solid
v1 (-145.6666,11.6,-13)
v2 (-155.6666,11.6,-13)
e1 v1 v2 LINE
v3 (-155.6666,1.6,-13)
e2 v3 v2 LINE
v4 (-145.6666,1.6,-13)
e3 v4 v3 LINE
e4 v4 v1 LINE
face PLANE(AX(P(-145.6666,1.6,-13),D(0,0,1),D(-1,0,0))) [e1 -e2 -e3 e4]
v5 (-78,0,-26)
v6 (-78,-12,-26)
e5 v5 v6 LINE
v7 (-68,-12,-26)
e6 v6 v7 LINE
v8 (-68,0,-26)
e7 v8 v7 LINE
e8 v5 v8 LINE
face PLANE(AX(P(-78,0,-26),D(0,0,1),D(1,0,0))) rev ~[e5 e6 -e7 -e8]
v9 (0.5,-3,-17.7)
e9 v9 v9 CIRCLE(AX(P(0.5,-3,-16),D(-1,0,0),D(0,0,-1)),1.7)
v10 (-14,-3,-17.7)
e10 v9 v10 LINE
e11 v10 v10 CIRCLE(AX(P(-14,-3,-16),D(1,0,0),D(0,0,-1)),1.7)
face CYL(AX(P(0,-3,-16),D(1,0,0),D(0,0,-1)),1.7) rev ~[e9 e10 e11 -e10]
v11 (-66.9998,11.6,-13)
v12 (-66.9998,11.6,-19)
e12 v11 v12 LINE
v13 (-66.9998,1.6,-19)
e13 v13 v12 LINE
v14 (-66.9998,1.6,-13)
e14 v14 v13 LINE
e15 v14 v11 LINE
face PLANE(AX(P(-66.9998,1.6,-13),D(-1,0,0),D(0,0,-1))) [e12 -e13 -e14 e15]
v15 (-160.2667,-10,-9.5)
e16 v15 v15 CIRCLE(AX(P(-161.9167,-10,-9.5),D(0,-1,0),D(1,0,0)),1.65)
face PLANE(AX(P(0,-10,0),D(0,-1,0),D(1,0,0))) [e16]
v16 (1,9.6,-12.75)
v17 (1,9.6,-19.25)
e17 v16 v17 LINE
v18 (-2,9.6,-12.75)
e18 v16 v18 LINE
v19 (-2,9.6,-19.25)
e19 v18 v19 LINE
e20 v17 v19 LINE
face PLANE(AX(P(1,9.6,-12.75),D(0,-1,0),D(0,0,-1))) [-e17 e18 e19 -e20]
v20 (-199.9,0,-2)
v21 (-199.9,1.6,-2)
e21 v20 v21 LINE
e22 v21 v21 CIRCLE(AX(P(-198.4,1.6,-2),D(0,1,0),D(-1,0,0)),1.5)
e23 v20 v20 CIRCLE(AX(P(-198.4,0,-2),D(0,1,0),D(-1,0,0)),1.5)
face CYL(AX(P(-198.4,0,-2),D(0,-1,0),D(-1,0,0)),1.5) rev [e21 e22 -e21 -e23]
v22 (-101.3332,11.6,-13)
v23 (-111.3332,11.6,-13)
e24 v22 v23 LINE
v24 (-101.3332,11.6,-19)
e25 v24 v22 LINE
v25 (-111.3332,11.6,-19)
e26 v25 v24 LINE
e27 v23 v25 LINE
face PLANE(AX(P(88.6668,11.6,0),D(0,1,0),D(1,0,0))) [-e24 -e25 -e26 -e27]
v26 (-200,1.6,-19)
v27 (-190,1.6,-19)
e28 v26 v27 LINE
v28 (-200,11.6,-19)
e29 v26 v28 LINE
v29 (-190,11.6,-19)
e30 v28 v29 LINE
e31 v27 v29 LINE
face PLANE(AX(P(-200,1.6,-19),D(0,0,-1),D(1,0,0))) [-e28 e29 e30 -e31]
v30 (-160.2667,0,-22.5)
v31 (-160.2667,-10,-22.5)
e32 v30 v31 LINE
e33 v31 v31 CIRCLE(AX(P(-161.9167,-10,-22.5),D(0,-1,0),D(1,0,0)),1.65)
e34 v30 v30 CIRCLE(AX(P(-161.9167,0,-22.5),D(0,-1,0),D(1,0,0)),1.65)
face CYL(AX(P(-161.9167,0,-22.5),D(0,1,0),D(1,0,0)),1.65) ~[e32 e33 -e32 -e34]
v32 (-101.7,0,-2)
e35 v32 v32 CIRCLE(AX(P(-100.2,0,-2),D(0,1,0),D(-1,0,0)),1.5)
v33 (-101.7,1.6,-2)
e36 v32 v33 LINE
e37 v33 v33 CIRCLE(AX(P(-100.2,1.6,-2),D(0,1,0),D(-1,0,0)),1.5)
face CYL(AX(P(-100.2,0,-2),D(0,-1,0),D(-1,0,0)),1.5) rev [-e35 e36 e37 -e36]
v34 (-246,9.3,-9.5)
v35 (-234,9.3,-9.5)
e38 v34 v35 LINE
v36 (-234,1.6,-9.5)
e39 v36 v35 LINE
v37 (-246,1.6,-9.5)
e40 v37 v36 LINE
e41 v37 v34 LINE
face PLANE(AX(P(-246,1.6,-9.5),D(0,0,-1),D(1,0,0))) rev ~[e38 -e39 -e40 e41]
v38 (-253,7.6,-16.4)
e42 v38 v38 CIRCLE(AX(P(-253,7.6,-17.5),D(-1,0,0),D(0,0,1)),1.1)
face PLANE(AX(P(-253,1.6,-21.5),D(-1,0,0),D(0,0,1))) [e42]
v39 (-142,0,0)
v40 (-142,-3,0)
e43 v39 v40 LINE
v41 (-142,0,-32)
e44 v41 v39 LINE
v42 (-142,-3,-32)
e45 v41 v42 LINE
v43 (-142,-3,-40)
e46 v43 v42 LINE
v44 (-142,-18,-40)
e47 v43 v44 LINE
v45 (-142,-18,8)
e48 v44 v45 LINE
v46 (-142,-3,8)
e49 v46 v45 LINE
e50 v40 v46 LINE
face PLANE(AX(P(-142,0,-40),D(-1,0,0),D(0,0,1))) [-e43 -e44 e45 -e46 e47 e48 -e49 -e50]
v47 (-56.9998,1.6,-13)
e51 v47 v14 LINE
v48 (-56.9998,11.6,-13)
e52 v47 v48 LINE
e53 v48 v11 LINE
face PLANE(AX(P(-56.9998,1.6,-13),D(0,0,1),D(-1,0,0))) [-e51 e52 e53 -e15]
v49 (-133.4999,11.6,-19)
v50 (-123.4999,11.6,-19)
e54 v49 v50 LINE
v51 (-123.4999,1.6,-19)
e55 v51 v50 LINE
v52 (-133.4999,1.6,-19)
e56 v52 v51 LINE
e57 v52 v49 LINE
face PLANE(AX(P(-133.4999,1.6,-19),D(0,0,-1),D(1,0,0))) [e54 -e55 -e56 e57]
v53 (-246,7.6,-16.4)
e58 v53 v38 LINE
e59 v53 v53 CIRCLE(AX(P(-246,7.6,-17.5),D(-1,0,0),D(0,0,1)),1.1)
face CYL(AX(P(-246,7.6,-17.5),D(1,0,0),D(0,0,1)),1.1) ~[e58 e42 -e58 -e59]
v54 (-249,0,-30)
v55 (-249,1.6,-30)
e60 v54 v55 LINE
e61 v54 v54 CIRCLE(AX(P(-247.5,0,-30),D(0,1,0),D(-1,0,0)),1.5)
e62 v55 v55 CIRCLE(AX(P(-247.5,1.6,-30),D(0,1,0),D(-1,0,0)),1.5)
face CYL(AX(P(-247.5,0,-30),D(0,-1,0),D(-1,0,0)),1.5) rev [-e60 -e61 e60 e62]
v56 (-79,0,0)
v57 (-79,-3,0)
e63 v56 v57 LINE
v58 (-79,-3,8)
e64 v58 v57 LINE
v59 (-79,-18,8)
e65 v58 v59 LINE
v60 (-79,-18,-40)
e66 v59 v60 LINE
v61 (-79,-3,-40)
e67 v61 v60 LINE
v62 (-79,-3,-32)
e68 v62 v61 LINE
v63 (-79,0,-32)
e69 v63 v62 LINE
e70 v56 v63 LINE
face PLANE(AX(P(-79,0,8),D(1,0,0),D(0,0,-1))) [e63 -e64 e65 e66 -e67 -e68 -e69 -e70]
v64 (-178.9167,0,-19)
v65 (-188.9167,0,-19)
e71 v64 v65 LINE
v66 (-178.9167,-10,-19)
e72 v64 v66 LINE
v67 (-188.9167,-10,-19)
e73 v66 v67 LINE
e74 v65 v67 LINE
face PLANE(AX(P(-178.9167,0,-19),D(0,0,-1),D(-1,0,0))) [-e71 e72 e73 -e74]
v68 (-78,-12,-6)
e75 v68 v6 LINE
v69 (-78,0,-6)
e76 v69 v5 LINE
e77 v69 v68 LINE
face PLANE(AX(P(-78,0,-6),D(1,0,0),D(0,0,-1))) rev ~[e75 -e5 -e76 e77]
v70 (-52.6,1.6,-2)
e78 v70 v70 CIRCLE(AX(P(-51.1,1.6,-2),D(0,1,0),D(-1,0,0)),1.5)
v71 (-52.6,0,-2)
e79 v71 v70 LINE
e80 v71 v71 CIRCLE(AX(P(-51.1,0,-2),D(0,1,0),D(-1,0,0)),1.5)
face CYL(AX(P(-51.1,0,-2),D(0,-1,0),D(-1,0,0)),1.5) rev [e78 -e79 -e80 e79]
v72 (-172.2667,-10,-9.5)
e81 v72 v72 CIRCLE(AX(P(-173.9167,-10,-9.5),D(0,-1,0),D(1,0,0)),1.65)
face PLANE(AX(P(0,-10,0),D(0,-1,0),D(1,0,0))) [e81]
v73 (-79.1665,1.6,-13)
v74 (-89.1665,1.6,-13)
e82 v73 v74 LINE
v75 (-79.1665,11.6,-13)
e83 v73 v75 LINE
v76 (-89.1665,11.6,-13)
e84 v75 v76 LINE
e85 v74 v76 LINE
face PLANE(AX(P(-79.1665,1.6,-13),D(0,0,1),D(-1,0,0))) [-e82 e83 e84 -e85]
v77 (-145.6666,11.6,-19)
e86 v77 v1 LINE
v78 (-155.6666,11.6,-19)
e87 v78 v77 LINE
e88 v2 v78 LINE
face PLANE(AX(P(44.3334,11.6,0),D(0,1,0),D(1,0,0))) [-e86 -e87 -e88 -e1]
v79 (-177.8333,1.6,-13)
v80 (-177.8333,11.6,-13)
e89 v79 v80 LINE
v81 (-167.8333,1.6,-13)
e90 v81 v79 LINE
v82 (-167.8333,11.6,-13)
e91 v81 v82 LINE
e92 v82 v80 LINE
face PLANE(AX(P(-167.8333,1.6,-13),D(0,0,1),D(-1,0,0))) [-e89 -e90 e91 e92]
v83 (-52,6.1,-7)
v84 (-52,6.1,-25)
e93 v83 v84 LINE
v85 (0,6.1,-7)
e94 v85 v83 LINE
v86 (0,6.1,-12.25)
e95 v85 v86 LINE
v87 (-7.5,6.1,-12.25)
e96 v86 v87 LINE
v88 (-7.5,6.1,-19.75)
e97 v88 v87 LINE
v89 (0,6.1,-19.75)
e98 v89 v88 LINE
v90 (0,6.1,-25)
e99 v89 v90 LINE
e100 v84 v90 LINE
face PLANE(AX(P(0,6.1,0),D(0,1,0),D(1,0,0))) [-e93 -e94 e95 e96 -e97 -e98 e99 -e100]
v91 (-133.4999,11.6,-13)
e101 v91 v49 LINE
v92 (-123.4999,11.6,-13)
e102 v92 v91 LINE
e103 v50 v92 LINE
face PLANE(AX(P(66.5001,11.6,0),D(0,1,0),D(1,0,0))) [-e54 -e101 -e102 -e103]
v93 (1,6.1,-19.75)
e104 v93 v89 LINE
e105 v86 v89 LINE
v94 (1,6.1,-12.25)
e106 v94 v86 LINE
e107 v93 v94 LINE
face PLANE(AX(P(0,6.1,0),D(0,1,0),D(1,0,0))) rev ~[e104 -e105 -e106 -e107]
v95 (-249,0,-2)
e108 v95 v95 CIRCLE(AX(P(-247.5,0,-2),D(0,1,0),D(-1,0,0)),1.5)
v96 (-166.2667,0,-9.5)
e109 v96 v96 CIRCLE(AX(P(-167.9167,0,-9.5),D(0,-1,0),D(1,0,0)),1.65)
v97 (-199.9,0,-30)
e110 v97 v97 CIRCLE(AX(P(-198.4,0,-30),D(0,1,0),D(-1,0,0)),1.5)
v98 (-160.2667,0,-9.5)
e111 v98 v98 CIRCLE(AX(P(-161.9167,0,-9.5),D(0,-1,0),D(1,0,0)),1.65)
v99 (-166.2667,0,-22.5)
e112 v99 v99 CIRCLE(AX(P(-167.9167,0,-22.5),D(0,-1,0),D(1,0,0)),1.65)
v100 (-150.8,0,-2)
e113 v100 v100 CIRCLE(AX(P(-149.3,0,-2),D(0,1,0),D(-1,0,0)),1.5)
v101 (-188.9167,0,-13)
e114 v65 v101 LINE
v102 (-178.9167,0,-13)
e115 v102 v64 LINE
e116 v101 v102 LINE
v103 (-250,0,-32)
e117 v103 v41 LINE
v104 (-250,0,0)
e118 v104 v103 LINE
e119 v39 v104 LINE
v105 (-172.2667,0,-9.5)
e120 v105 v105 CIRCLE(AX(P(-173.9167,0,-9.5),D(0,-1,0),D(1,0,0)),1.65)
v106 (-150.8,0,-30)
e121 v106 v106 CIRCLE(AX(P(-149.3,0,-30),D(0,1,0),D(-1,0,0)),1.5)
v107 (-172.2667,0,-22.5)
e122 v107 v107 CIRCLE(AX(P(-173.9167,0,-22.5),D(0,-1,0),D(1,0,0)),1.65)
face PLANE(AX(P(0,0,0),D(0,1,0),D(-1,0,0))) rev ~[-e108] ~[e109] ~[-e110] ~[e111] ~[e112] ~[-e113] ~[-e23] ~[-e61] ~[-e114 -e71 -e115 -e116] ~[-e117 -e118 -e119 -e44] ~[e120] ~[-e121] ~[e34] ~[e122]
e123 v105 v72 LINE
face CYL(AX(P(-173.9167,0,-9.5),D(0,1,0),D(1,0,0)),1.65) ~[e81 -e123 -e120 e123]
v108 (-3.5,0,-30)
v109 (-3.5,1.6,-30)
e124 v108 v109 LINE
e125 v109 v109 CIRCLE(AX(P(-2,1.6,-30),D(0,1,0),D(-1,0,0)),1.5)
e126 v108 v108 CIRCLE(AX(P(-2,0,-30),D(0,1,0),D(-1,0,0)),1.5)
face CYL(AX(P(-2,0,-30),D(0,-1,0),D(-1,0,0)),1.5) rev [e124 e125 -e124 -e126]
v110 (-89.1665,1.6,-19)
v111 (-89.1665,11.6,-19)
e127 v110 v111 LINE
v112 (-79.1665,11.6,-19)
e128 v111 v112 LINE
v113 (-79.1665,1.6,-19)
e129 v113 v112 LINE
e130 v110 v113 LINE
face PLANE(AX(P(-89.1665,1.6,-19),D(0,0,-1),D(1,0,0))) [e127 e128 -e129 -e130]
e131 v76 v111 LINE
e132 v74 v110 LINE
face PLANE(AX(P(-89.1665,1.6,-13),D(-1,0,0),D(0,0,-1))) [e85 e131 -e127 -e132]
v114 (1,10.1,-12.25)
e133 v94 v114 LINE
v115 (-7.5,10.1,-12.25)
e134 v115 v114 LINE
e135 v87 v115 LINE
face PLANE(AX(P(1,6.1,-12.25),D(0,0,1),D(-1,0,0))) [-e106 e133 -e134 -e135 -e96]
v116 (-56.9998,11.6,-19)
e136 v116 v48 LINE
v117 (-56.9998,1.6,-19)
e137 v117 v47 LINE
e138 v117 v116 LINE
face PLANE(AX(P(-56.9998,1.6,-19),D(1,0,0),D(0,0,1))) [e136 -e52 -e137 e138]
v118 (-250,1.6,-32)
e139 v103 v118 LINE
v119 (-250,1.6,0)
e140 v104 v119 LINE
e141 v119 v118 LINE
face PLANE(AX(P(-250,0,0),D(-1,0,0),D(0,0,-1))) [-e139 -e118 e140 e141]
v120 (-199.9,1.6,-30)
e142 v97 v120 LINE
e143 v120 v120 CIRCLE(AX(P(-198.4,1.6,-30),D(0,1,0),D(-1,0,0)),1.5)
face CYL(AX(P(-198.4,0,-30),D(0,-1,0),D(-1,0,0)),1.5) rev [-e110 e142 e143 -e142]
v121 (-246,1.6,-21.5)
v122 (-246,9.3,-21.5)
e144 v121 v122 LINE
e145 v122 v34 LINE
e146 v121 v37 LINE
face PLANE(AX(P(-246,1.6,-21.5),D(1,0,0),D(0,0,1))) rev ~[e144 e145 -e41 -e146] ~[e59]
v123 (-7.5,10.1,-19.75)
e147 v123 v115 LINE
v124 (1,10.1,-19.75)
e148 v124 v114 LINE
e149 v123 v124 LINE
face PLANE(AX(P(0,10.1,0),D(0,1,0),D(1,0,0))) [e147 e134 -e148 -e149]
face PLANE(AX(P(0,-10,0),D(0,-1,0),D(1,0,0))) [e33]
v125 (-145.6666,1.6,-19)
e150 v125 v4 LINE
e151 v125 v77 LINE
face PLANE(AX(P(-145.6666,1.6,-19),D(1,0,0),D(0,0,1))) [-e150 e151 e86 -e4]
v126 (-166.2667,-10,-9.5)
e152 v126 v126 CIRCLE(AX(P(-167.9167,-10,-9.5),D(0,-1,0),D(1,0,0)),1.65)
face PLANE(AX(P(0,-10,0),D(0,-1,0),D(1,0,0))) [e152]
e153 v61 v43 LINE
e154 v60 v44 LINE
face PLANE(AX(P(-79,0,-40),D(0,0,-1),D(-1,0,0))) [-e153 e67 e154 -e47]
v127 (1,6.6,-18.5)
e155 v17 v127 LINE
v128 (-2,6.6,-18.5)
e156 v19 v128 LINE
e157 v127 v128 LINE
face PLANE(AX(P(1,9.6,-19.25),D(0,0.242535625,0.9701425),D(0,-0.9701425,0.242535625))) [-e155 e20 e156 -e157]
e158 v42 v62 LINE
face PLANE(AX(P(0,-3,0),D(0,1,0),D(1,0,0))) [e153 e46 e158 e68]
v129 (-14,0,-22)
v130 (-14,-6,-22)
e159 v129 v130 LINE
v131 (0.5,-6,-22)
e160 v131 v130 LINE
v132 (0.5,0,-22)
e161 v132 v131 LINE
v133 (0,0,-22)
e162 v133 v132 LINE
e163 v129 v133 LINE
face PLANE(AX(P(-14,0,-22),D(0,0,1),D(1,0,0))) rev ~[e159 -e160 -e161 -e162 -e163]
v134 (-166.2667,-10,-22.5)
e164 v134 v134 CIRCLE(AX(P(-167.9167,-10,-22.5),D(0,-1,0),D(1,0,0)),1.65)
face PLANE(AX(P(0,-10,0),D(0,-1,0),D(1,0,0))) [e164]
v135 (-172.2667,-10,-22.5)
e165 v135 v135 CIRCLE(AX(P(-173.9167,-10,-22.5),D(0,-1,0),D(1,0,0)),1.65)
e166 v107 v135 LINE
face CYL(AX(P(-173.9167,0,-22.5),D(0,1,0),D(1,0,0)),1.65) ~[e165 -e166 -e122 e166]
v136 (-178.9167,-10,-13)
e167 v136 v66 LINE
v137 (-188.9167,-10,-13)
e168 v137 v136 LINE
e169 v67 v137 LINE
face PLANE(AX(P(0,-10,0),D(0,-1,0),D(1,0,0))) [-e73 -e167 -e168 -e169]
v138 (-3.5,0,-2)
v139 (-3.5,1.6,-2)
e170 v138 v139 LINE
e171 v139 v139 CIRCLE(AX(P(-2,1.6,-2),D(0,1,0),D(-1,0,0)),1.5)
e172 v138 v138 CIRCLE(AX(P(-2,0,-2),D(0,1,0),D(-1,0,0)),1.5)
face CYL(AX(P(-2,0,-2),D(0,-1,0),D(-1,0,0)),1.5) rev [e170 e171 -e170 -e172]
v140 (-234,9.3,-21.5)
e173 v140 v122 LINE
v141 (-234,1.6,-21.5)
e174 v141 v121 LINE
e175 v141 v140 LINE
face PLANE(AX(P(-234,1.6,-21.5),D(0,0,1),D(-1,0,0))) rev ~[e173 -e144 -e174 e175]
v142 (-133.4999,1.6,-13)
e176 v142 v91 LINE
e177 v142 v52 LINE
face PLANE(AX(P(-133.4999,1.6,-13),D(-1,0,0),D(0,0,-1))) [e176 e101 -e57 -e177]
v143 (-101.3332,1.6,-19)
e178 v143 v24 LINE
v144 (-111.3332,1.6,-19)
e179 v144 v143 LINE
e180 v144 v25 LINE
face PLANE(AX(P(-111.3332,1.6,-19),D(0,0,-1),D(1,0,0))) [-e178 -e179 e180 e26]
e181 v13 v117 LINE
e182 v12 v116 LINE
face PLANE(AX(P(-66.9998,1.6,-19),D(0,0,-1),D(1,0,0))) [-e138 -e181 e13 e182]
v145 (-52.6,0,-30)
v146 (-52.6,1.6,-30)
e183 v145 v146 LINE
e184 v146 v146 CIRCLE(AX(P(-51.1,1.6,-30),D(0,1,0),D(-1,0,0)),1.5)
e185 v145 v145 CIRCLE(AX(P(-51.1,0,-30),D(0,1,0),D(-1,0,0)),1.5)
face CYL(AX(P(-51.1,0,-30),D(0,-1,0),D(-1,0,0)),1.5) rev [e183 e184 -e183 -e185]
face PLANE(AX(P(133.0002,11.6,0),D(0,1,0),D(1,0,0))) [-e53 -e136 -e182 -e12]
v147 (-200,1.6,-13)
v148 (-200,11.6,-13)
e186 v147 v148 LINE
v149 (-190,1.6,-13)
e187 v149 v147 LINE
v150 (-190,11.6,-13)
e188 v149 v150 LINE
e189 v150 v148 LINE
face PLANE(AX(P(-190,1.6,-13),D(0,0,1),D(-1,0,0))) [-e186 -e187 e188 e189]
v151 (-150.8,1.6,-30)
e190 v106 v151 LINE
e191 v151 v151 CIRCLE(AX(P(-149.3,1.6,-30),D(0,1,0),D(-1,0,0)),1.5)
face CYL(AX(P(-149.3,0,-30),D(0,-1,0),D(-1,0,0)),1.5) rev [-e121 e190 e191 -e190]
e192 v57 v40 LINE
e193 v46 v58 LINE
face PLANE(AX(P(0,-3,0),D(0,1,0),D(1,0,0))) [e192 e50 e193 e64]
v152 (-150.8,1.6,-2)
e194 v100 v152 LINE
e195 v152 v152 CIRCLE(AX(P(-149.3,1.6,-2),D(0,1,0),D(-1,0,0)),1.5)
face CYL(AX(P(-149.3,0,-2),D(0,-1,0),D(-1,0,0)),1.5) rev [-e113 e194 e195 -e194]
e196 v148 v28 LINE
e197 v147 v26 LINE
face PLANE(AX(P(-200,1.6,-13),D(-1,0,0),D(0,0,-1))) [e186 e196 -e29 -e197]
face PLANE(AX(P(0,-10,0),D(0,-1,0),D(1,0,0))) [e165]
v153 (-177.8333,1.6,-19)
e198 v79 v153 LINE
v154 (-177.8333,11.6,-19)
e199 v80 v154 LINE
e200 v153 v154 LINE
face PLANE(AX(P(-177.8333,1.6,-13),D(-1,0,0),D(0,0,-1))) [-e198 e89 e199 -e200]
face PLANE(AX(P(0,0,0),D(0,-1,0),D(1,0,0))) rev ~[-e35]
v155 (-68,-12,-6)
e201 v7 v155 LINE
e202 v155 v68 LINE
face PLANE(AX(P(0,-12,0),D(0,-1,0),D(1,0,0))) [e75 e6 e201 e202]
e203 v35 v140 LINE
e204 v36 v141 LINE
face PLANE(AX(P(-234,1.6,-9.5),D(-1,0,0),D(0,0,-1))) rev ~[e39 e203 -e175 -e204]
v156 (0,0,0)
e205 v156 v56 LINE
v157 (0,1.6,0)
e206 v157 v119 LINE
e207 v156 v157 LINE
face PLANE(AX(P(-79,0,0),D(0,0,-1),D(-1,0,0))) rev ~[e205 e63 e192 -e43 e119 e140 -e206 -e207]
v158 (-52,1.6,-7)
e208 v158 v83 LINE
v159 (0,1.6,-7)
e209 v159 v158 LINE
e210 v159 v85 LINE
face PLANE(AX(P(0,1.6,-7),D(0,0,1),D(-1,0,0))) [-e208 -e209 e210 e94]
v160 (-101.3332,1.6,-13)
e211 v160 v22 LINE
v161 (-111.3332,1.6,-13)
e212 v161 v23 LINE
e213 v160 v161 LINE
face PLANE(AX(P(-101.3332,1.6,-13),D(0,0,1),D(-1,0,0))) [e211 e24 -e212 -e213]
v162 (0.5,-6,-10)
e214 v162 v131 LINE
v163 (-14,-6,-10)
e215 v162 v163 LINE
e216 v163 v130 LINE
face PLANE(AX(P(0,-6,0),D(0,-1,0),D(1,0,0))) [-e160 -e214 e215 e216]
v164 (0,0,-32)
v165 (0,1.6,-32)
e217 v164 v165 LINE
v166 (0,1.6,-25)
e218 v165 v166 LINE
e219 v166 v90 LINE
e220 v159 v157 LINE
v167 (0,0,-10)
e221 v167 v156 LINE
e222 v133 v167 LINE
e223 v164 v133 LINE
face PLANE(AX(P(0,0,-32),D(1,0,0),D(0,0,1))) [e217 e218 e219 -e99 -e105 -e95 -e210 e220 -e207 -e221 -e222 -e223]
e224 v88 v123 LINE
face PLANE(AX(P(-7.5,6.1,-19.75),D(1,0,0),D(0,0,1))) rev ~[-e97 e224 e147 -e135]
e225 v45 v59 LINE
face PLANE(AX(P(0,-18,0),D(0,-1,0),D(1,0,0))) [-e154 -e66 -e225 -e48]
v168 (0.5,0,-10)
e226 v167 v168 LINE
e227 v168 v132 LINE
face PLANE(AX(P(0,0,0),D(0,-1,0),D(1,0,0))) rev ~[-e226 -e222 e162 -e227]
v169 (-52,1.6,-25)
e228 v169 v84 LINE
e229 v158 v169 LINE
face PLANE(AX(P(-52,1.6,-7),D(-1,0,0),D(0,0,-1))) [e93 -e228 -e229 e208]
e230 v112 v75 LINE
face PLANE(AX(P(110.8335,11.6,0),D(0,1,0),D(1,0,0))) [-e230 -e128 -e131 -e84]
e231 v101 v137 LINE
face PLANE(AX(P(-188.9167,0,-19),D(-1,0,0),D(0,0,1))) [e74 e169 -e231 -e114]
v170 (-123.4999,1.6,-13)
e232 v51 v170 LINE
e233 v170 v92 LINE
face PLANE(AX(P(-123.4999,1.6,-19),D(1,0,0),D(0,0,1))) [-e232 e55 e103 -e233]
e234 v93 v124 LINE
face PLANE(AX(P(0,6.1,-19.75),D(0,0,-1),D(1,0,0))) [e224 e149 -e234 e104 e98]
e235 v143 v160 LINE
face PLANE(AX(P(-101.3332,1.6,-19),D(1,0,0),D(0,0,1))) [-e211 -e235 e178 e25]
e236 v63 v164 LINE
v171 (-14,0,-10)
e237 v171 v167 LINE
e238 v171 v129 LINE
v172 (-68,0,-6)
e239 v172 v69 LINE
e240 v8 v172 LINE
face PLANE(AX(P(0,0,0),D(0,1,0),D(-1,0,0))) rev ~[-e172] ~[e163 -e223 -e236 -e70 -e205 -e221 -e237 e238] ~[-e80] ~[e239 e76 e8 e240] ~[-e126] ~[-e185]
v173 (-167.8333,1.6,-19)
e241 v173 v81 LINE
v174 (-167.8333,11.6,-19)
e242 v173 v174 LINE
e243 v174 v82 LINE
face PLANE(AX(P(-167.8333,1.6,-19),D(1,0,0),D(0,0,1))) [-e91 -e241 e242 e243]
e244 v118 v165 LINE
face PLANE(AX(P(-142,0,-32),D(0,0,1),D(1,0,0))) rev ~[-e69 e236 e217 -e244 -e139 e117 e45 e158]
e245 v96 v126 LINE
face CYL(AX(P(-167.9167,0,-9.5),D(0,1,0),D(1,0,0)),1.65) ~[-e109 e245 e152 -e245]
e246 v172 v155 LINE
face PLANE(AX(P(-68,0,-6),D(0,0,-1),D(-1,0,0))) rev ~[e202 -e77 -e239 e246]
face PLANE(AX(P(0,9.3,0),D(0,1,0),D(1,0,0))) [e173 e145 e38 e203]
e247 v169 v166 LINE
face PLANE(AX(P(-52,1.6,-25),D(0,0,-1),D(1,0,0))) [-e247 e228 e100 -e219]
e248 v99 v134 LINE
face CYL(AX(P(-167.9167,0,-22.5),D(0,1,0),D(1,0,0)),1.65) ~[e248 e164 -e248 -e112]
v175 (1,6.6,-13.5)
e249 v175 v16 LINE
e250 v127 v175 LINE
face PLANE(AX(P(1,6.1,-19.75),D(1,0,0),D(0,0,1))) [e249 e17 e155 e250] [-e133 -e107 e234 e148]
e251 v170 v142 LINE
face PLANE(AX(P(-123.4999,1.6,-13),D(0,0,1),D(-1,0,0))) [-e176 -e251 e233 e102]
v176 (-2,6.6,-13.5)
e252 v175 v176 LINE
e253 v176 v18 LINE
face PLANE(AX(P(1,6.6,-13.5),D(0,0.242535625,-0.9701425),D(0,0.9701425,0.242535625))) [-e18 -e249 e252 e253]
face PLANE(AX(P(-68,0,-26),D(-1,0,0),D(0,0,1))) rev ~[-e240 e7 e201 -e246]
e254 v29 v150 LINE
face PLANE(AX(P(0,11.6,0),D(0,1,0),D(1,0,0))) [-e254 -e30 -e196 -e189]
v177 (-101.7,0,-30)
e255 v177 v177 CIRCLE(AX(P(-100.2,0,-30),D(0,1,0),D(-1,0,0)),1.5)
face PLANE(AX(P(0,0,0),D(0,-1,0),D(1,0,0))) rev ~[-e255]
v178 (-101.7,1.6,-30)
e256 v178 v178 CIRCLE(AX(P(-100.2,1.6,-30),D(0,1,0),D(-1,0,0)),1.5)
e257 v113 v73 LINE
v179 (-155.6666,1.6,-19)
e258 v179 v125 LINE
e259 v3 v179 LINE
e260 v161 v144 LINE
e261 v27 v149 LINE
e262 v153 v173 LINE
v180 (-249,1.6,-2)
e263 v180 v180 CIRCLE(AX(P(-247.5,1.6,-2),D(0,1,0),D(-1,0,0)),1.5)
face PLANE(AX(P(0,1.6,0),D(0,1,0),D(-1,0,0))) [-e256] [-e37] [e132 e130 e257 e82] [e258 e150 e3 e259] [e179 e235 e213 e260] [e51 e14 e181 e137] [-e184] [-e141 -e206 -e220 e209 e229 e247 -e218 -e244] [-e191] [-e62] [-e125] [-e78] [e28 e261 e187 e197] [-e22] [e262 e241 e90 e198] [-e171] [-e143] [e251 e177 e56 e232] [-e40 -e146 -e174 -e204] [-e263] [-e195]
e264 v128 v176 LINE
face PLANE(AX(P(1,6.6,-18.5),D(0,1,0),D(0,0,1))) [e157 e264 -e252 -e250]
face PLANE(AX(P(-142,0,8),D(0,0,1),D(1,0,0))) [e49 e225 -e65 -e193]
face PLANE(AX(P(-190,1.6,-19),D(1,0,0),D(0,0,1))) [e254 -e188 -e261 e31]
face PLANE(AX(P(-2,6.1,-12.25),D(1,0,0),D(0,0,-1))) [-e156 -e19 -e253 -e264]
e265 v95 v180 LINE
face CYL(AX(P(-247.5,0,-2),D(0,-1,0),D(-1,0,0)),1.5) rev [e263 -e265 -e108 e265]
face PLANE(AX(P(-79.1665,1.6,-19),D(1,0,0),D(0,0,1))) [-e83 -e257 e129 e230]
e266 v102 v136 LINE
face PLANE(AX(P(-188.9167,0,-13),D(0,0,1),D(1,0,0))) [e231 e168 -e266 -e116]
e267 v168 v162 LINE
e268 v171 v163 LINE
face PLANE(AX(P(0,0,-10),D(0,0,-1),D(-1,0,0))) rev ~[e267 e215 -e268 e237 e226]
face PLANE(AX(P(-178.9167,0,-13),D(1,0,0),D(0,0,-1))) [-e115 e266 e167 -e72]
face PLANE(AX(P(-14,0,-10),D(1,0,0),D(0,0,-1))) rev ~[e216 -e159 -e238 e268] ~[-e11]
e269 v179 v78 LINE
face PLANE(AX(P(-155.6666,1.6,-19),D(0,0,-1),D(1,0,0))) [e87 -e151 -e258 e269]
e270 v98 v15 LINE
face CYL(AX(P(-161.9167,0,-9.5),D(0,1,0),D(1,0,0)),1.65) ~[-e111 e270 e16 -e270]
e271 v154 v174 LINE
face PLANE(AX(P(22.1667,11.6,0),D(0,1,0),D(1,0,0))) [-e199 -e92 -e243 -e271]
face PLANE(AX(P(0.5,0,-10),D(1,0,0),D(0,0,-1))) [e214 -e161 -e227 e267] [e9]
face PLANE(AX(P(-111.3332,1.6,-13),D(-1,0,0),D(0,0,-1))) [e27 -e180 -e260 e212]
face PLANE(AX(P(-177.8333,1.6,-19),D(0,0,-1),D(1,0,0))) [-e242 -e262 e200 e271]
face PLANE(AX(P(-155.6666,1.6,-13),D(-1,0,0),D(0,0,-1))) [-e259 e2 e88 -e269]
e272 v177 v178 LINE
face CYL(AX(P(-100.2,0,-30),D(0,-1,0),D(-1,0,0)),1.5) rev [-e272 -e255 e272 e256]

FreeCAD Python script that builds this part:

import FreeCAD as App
import Part
import Sketcher
Q = App.Units.Quantity


def add_polygon(sketch, points):
    """Adds a closed chain of lines whose ends are joined by coincident constraints."""
    first, n = sketch.GeometryCount, len(points)
    for a, b in zip(points, points[1:] + points[:1]):
        sketch.addGeometry(Part.LineSegment(App.Vector(*a, 0), App.Vector(*b, 0)), False)
    for i in range(n):
        sketch.addConstraint(Sketcher.Constraint("Coincident", first + i, 2, first + (i + 1) % n, 1))

doc = App.newDocument("Part")
body = doc.addObject("PartDesign::Body", "Body")

# Sketch on XZ plane
sketch1 = doc.addObject("Sketcher::SketchObject", "Sketch")
body.addObject(sketch1)
sketch1.AttachmentSupport = (doc.XZ_Plane, [""])
sketch1.MapMode = "FlatFace"
add_polygon(sketch1, [(-250, 0), (0, 0), (0, -32), (-250, -32)])  # lines 0-3
sketch1.addGeometry(Part.Circle(App.Vector(-2, -30, 0), App.Vector(0, 0, 1), 1.5), False)  # 4
sketch1.addGeometry(Part.Circle(App.Vector(-51.1, -30, 0), App.Vector(0, 0, 1), 1.5), False)  # 5
sketch1.addGeometry(Part.Circle(App.Vector(-100.2, -30, 0), App.Vector(0, 0, 1), 1.5), False)  # 6
sketch1.addGeometry(Part.Circle(App.Vector(-149.3, -30, 0), App.Vector(0, 0, 1), 1.5), False)  # 7
sketch1.addGeometry(Part.Circle(App.Vector(-198.4, -30, 0), App.Vector(0, 0, 1), 1.5), False)  # 8
sketch1.addGeometry(Part.Circle(App.Vector(-247.5, -30, 0), App.Vector(0, 0, 1), 1.5), False)  # 9
sketch1.addGeometry(Part.Circle(App.Vector(-2, -2, 0), App.Vector(0, 0, 1), 1.5), False)  # 10
sketch1.addGeometry(Part.Circle(App.Vector(-51.1, -2, 0), App.Vector(0, 0, 1), 1.5), False)  # 11
sketch1.addGeometry(Part.Circle(App.Vector(-100.2, -2, 0), App.Vector(0, 0, 1), 1.5), False)  # 12
sketch1.addGeometry(Part.Circle(App.Vector(-149.3, -2, 0), App.Vector(0, 0, 1), 1.5), False)  # 13
sketch1.addGeometry(Part.Circle(App.Vector(-198.4, -2, 0), App.Vector(0, 0, 1), 1.5), False)  # 14
sketch1.addGeometry(Part.Circle(App.Vector(-247.5, -2, 0), App.Vector(0, 0, 1), 1.5), False)  # 15
sketch1.addConstraint(Sketcher.Constraint("Horizontal", 0))
sketch1.addConstraint(Sketcher.Constraint("Vertical", 1))
sketch1.addConstraint(Sketcher.Constraint("Horizontal", 2))
sketch1.addConstraint(Sketcher.Constraint("Vertical", 3))
sketch1.addConstraint(Sketcher.Constraint("Coincident", 0, 2, -1, 1))
sketch1.addConstraint(Sketcher.Constraint("Equal", 4, 5))
sketch1.addConstraint(Sketcher.Constraint("Equal", 5, 6))
sketch1.addConstraint(Sketcher.Constraint("Equal", 6, 7))
sketch1.addConstraint(Sketcher.Constraint("Equal", 7, 8))
sketch1.addConstraint(Sketcher.Constraint("Equal", 8, 9))
sketch1.addConstraint(Sketcher.Constraint("Equal", 9, 10))
sketch1.addConstraint(Sketcher.Constraint("Equal", 10, 11))
sketch1.addConstraint(Sketcher.Constraint("Equal", 11, 12))
sketch1.addConstraint(Sketcher.Constraint("Equal", 12, 13))
sketch1.addConstraint(Sketcher.Constraint("Equal", 13, 14))
sketch1.addConstraint(Sketcher.Constraint("Equal", 14, 15))
sketch1.addConstraint(Sketcher.Constraint("Horizontal", 4, 3, 5, 3))
sketch1.addConstraint(Sketcher.Constraint("Horizontal", 5, 3, 6, 3))
sketch1.addConstraint(Sketcher.Constraint("Horizontal", 6, 3, 7, 3))
sketch1.addConstraint(Sketcher.Constraint("Horizontal", 7, 3, 8, 3))
sketch1.addConstraint(Sketcher.Constraint("Horizontal", 8, 3, 9, 3))
sketch1.addConstraint(Sketcher.Constraint("Horizontal", 10, 3, 11, 3))
sketch1.addConstraint(Sketcher.Constraint("Horizontal", 11, 3, 12, 3))
sketch1.addConstraint(Sketcher.Constraint("Horizontal", 12, 3, 13, 3))
sketch1.addConstraint(Sketcher.Constraint("Horizontal", 13, 3, 14, 3))
sketch1.addConstraint(Sketcher.Constraint("Horizontal", 14, 3, 15, 3))
sketch1.addConstraint(Sketcher.Constraint("Vertical", 4, 3, 10, 3))
sketch1.addConstraint(Sketcher.Constraint("Vertical", 5, 3, 11, 3))
sketch1.addConstraint(Sketcher.Constraint("Vertical", 6, 3, 12, 3))
sketch1.addConstraint(Sketcher.Constraint("Vertical", 7, 3, 13, 3))
sketch1.addConstraint(Sketcher.Constraint("Vertical", 8, 3, 14, 3))
sketch1.addConstraint(Sketcher.Constraint("Vertical", 9, 3, 15, 3))
sketch1.addConstraint(Sketcher.Constraint("Diameter", 4, Q("3 mm")))
sketch1.addConstraint(Sketcher.Constraint("DistanceX", 0, 1, 0, 2, Q("250 mm")))
sketch1.addConstraint(Sketcher.Constraint("DistanceY", 1, 2, 1, 1, Q("32 mm")))
sketch1.addConstraint(Sketcher.Constraint("DistanceX", 4, 3, -1, 1, Q("2 mm")))
sketch1.addConstraint(Sketcher.Constraint("DistanceY", 10, 3, -1, 1, Q("2 mm")))
sketch1.addConstraint(Sketcher.Constraint("DistanceY", 1, 2, 4, 3, Q("2 mm")))
sketch1.addConstraint(Sketcher.Constraint("DistanceX", 5, 3, 4, 3, Q("49.1 mm")))
sketch1.addConstraint(Sketcher.Constraint("DistanceX", 6, 3, 5, 3, Q("49.1 mm")))
sketch1.addConstraint(Sketcher.Constraint("DistanceX", 7, 3, 6, 3, Q("49.1 mm")))
sketch1.addConstraint(Sketcher.Constraint("DistanceX", 8, 3, 7, 3, Q("49.1 mm")))
sketch1.addConstraint(Sketcher.Constraint("DistanceX", 9, 3, 8, 3, Q("49.1 mm")))
pad1 = doc.addObject("PartDesign::Pad", "Pad")
body.addObject(pad1)
pad1.Profile = sketch1
pad1.Length = 1.6
pad1.Reversed = True

# Sketch on XZ plane
sketch2 = doc.addObject("Sketcher::SketchObject", "Sketch001")
body.addObject(sketch2)
sketch2.AttachmentSupport = (doc.XZ_Plane, [""])
sketch2.MapMode = "FlatFace"
sketch2.AttachmentOffset = App.Placement(App.Vector(0, 0, -1.6), App.Rotation())
add_polygon(sketch2, [(-246, -22), (-246, -10), (-234, -10), (-234, -22)])  # lines 0-3
sketch2.addConstraint(Sketcher.Constraint("Vertical", 0))
sketch2.addConstraint(Sketcher.Constraint("Horizontal", 1))
sketch2.addConstraint(Sketcher.Constraint("Vertical", 2))
sketch2.addConstraint(Sketcher.Constraint("Horizontal", 3))
sketch2.addConstraint(Sketcher.Constraint("Equal", 3, 0))
sketch2.addConstraint(Sketcher.Constraint("DistanceX", 1, 1, 1, 2, Q("12 mm")))
sketch2.addConstraint(Sketcher.Constraint("DistanceY", 0, 2, -1, 1, Q("9.5 mm")))
sketch2.addConstraint(Sketcher.Constraint("DistanceX", 0, 2, -1, 1, Q("246 mm")))
pad2 = doc.addObject("PartDesign::Pad", "Pad001")
body.addObject(pad2)
pad2.Profile = sketch2
pad2.Length = 7.7
pad2.Reversed = True

# Sketch on YZ plane
sketch3 = doc.addObject("Sketcher::SketchObject", "Sketch002")
body.addObject(sketch3)
sketch3.AttachmentSupport = (doc.YZ_Plane, [""])
sketch3.MapMode = "FlatFace"
sketch3.AttachmentOffset = App.Placement(App.Vector(0, 0, -246), App.Rotation())
sketch3.addGeometry(Part.Circle(App.Vector(7.6, -17.5, 0), App.Vector(0, 0, 1), 1.1), False)
sketch3.addConstraint(Sketcher.Constraint("Diameter", 0, Q("2.2 mm")))
sketch3.addConstraint(Sketcher.Constraint("DistanceX", -1, 1, 0, 3, Q("7.6 mm")))
sketch3.addConstraint(Sketcher.Constraint("DistanceY", 0, 3, -1, 1, Q("17.5 mm")))
pad3 = doc.addObject("PartDesign::Pad", "Pad002")
body.addObject(pad3)
pad3.Profile = sketch3
pad3.Length = 7
pad3.Reversed = True

# Sketch on XZ plane
sketch4 = doc.addObject("Sketcher::SketchObject", "Sketch003")
body.addObject(sketch4)
sketch4.AttachmentSupport = (doc.XZ_Plane, [""])
sketch4.MapMode = "FlatFace"
sketch4.AttachmentOffset = App.Placement(App.Vector(0, 0, -1.6), App.Rotation())
add_polygon(sketch4, [(-190, -19), (-200, -19), (-200, -13), (-190, -13)])  # lines 0-3
sketch4.addConstraint(Sketcher.Constraint("Horizontal", 0))
sketch4.addConstraint(Sketcher.Constraint("Vertical", 1))
sketch4.addConstraint(Sketcher.Constraint("Horizontal", 2))
sketch4.addConstraint(Sketcher.Constraint("Vertical", 3))
sketch4.addConstraint(Sketcher.Constraint("DistanceX", 0, 2, 0, 1, Q("10 mm")))
sketch4.addConstraint(Sketcher.Constraint("DistanceY", 1, 1, 1, 2, Q("6 mm")))
sketch4.addConstraint(Sketcher.Constraint("DistanceX", 0, 2, -1, 1, Q("200 mm")))
sketch4.addConstraint(Sketcher.Constraint("DistanceY", 0, 2, -1, 1, Q("19 mm")))
pad4 = doc.addObject("PartDesign::Pad", "Pad003")
body.addObject(pad4)
pad4.Profile = sketch4
pad4.Length = 10
pad4.Reversed = True
doc.recompute()

linearpattern = doc.addObject("PartDesign::LinearPattern", "LinearPattern")
body.addObject(linearpattern)
linearpattern.Originals = [pad4]
linearpattern.Direction = (doc.X_Axis, [""])
linearpattern.Mode = "offset"
linearpattern.Offset = 22.1667
linearpattern.Occurrences = 7
body.Tip = linearpattern

# Sketch on XZ plane
sketch5 = doc.addObject("Sketcher::SketchObject", "Sketch004")
body.addObject(sketch5)
sketch5.AttachmentSupport = (doc.XZ_Plane, [""])
sketch5.MapMode = "FlatFace"
add_polygon(sketch5, [(-179, -13), (-189, -13), (-189, -19), (-179, -19)])  # lines 0-3
sketch5.addConstraint(Sketcher.Constraint("Horizontal", 0))
sketch5.addConstraint(Sketcher.Constraint("Vertical", 1))
sketch5.addConstraint(Sketcher.Constraint("Horizontal", 2))
sketch5.addConstraint(Sketcher.Constraint("Vertical", 3))
sketch5.addConstraint(Sketcher.Constraint("DistanceX", 0, 2, 0, 1, Q("10 mm")))
sketch5.addConstraint(Sketcher.Constraint("DistanceY", 1, 2, 1, 1, Q("6 mm")))
sketch5.addConstraint(Sketcher.Constraint("DistanceY", 0, 2, -1, 1, Q("13 mm")))
sketch5.addConstraint(Sketcher.Constraint("DistanceX", 0, 2, -1, 1, Q("188.9167 mm")))
pad5 = doc.addObject("PartDesign::Pad", "Pad004")
body.addObject(pad5)
pad5.Profile = sketch5
pad5.Length = 10

# Sketch on XZ plane
sketch6 = doc.addObject("Sketcher::SketchObject", "Sketch005")
body.addObject(sketch6)
sketch6.AttachmentSupport = (doc.XZ_Plane, [""])
sketch6.MapMode = "FlatFace"
sketch6.addGeometry(Part.Circle(App.Vector(-173.9, -22.5, 0), App.Vector(0, 0, 1), 1.6), False)
sketch6.addGeometry(Part.Circle(App.Vector(-167.9, -22.5, 0), App.Vector(0, 0, 1), 1.6), False)
sketch6.addGeometry(Part.Circle(App.Vector(-161.9, -22.5, 0), App.Vector(0, 0, 1), 1.6), False)
sketch6.addGeometry(Part.Circle(App.Vector(-173.9, -9.5, 0), App.Vector(0, 0, 1), 1.6), False)
sketch6.addGeometry(Part.Circle(App.Vector(-167.9, -9.5, 0), App.Vector(0, 0, 1), 1.6), False)
sketch6.addGeometry(Part.Circle(App.Vector(-161.9, -9.5, 0), App.Vector(0, 0, 1), 1.6), False)
sketch6.addConstraint(Sketcher.Constraint("Equal", 0, 1))
sketch6.addConstraint(Sketcher.Constraint("Equal", 1, 2))
sketch6.addConstraint(Sketcher.Constraint("Equal", 2, 3))
sketch6.addConstraint(Sketcher.Constraint("Equal", 3, 4))
sketch6.addConstraint(Sketcher.Constraint("Equal", 4, 5))
sketch6.addConstraint(Sketcher.Constraint("Horizontal", 0, 3, 1, 3))
sketch6.addConstraint(Sketcher.Constraint("Horizontal", 1, 3, 2, 3))
sketch6.addConstraint(Sketcher.Constraint("Horizontal", 3, 3, 4, 3))
sketch6.addConstraint(Sketcher.Constraint("Horizontal", 4, 3, 5, 3))
sketch6.addConstraint(Sketcher.Constraint("Vertical", 0, 3, 3, 3))
sketch6.addConstraint(Sketcher.Constraint("Vertical", 1, 3, 4, 3))
sketch6.addConstraint(Sketcher.Constraint("Vertical", 2, 3, 5, 3))
sketch6.addConstraint(Sketcher.Constraint("Diameter", 0, Q("3.3 mm")))
sketch6.addConstraint(Sketcher.Constraint("DistanceX", 0, 3, 1, 3, Q("6 mm")))
sketch6.addConstraint(Sketcher.Constraint("DistanceX", 1, 3, 2, 3, Q("6 mm")))
sketch6.addConstraint(Sketcher.Constraint("DistanceY", 0, 3, 3, 3, Q("13 mm")))
sketch6.addConstraint(Sketcher.Constraint("DistanceY", 0, 3, -1, 1, Q("22.5 mm")))
sketch6.addConstraint(Sketcher.Constraint("DistanceX", 0, 3, -1, 1, Q("173.9167 mm")))
pad6 = doc.addObject("PartDesign::Pad", "Pad005")
body.addObject(pad6)
pad6.Profile = sketch6
pad6.Length = 10

# Sketch on XZ plane
sketch7 = doc.addObject("Sketcher::SketchObject", "Sketch006")
body.addObject(sketch7)
sketch7.AttachmentSupport = (doc.XZ_Plane, [""])
sketch7.MapMode = "FlatFace"
sketch7.AttachmentOffset = App.Placement(App.Vector(0, 0, -1.6), App.Rotation())
add_polygon(sketch7, [(-52, -7), (0, -7), (0, -25), (-52, -25)])  # lines 0-3
sketch7.addConstraint(Sketcher.Constraint("Horizontal", 0))
sketch7.addConstraint(Sketcher.Constraint("Vertical", 1))
sketch7.addConstraint(Sketcher.Constraint("Horizontal", 2))
sketch7.addConstraint(Sketcher.Constraint("Vertical", 3))
sketch7.addConstraint(Sketcher.Constraint("PointOnObject", 0, 2, -2))
sketch7.addConstraint(Sketcher.Constraint("DistanceX", 0, 1, 0, 2, Q("52 mm")))
sketch7.addConstraint(Sketcher.Constraint("DistanceY", 1, 2, 1, 1, Q("18 mm")))
sketch7.addConstraint(Sketcher.Constraint("DistanceY", 0, 2, -1, 1, Q("7 mm")))
pad7 = doc.addObject("PartDesign::Pad", "Pad006")
body.addObject(pad7)
pad7.Profile = sketch7
pad7.Length = 4.5
pad7.Reversed = True

# Sketch on XZ plane
sketch8 = doc.addObject("Sketcher::SketchObject", "Sketch007")
body.addObject(sketch8)
sketch8.AttachmentSupport = (doc.XZ_Plane, [""])
sketch8.MapMode = "FlatFace"
sketch8.AttachmentOffset = App.Placement(App.Vector(0, 0, -6.1), App.Rotation())
add_polygon(sketch8, [(1, -20), (-8, -20), (-8, -12), (1, -12)])  # lines 0-3
sketch8.addConstraint(Sketcher.Constraint("Horizontal", 0))
sketch8.addConstraint(Sketcher.Constraint("Vertical", 1))
sketch8.addConstraint(Sketcher.Constraint("Horizontal", 2))
sketch8.addConstraint(Sketcher.Constraint("Vertical", 3))
sketch8.addConstraint(Sketcher.Constraint("DistanceY", 1, 1, 1, 2, Q("7.5 mm")))
sketch8.addConstraint(Sketcher.Constraint("DistanceX", -1, 1, 2, 2, Q("1 mm")))
sketch8.addConstraint(Sketcher.Constraint("DistanceX", 0, 2, -1, 1, Q("7.5 mm")))
sketch8.addConstraint(Sketcher.Constraint("DistanceY", 0, 2, -1, 1, Q("19.75 mm")))
pad8 = doc.addObject("PartDesign::Pad", "Pad007")
body.addObject(pad8)
pad8.Profile = sketch8
pad8.Length = 4
pad8.Reversed = True

# Sketch on YZ plane
sketch9 = doc.addObject("Sketcher::SketchObject", "Sketch008")
body.addObject(sketch9)
sketch9.AttachmentSupport = (doc.YZ_Plane, [""])
sketch9.MapMode = "FlatFace"
sketch9.AttachmentOffset = App.Placement(App.Vector(0, 0, 1), App.Rotation())
add_polygon(sketch9, [(9.6, -19.2), (9.6, -12.8), (6.6, -13.5), (6.6, -18.5)])  # lines 0-3
sketch9.addConstraint(Sketcher.Constraint("Vertical", 0))
sketch9.addConstraint(Sketcher.Constraint("Vertical", 2))
sketch9.addConstraint(Sketcher.Constraint("Equal", 1, 3))
sketch9.addConstraint(Sketcher.Constraint("DistanceY", 2, 2, 2, 1, Q("5 mm")))
sketch9.addConstraint(Sketcher.Constraint("DistanceY", 0, 1, 0, 2, Q("6.5 mm")))
sketch9.addConstraint(Sketcher.Constraint("DistanceX", 1, 2, 0, 2, Q("3 mm")))
sketch9.addConstraint(Sketcher.Constraint("DistanceX", -1, 1, 0, 2, Q("9.6 mm")))
sketch9.addConstraint(Sketcher.Constraint("DistanceY", 1, 2, -1, 1, Q("13.5 mm")))
pocket1 = doc.addObject("PartDesign::Pocket", "Pocket")
body.addObject(pocket1)
pocket1.Profile = sketch9
pocket1.Length = 3

# Sketch on XZ plane
sketch10 = doc.addObject("Sketcher::SketchObject", "Sketch009")
body.addObject(sketch10)
sketch10.AttachmentSupport = (doc.XZ_Plane, [""])
sketch10.MapMode = "FlatFace"
add_polygon(sketch10, [(-14, -22), (0, -22), (0, -10), (-14, -10)])  # lines 0-3
sketch10.addConstraint(Sketcher.Constraint("Horizontal", 0))
sketch10.addConstraint(Sketcher.Constraint("Vertical", 1))
sketch10.addConstraint(Sketcher.Constraint("Horizontal", 2))
sketch10.addConstraint(Sketcher.Constraint("Vertical", 3))
sketch10.addConstraint(Sketcher.Constraint("DistanceY", 1, 1, 1, 2, Q("12 mm")))
sketch10.addConstraint(Sketcher.Constraint("DistanceX", 2, 2, -1, 1, Q("14 mm")))
sketch10.addConstraint(Sketcher.Constraint("DistanceX", -1, 1, 0, 2, Q("0.5 mm")))
sketch10.addConstraint(Sketcher.Constraint("DistanceY", 0, 2, -1, 1, Q("22 mm")))
pad9 = doc.addObject("PartDesign::Pad", "Pad008")
body.addObject(pad9)
pad9.Profile = sketch10
pad9.Length = 6

# Sketch on YZ plane
sketch11 = doc.addObject("Sketcher::SketchObject", "Sketch010")
body.addObject(sketch11)
sketch11.AttachmentSupport = (doc.YZ_Plane, [""])
sketch11.MapMode = "FlatFace"
sketch11.addGeometry(Part.Circle(App.Vector(-3, -16, 0), App.Vector(0, 0, 1), 1.7), False)
sketch11.addConstraint(Sketcher.Constraint("Diameter", 0, Q("3.4 mm")))
sketch11.addConstraint(Sketcher.Constraint("DistanceX", 0, 3, -1, 1, Q("3 mm")))
sketch11.addConstraint(Sketcher.Constraint("DistanceY", 0, 3, -1, 1, Q("16 mm")))
pocket2 = doc.addObject("PartDesign::Pocket", "Pocket001")
body.addObject(pocket2)
pocket2.Profile = sketch11
pocket2.Length = 40
pocket2.Midplane = True

# Sketch on XZ plane
sketch12 = doc.addObject("Sketcher::SketchObject", "Sketch011")
body.addObject(sketch12)
sketch12.AttachmentSupport = (doc.XZ_Plane, [""])
sketch12.MapMode = "FlatFace"
add_polygon(sketch12, [(-79, 8), (-142, 8), (-142, -40), (-79, -40)])  # lines 0-3
sketch12.addConstraint(Sketcher.Constraint("Horizontal", 0))
sketch12.addConstraint(Sketcher.Constraint("Vertical", 1))
sketch12.addConstraint(Sketcher.Constraint("Horizontal", 2))
sketch12.addConstraint(Sketcher.Constraint("Vertical", 3))
sketch12.addConstraint(Sketcher.Constraint("DistanceX", 0, 2, 0, 1, Q("63 mm")))
sketch12.addConstraint(Sketcher.Constraint("DistanceY", 1, 2, 1, 1, Q("48 mm")))
sketch12.addConstraint(Sketcher.Constraint("DistanceX", 0, 2, -1, 1, Q("142 mm")))
sketch12.addConstraint(Sketcher.Constraint("DistanceY", -1, 1, 0, 2, Q("8 mm")))
pad10 = doc.addObject("PartDesign::Pad", "Pad009")
body.addObject(pad10)
pad10.Profile = sketch12
pad10.Length = 18

# Sketch on XZ plane
sketch13 = doc.addObject("Sketcher::SketchObject", "Sketch012")
body.addObject(sketch13)
sketch13.AttachmentSupport = (doc.XZ_Plane, [""])
sketch13.MapMode = "FlatFace"
add_polygon(sketch13, [(-78, -6), (-78, -26), (-68, -26), (-68, -6)])  # lines 0-3
sketch13.addConstraint(Sketcher.Constraint("Vertical", 0))
sketch13.addConstraint(Sketcher.Constraint("Horizontal", 1))
sketch13.addConstraint(Sketcher.Constraint("Vertical", 2))
sketch13.addConstraint(Sketcher.Constraint("Horizontal", 3))
sketch13.addConstraint(Sketcher.Constraint("DistanceX", 1, 1, 1, 2, Q("10 mm")))
sketch13.addConstraint(Sketcher.Constraint("DistanceY", 0, 2, 0, 1, Q("20 mm")))
sketch13.addConstraint(Sketcher.Constraint("DistanceX", 1, 2, -1, 1, Q("68 mm")))
sketch13.addConstraint(Sketcher.Constraint("DistanceY", 0, 2, -1, 1, Q("26 mm")))
pad11 = doc.addObject("PartDesign::Pad", "Pad010")
body.addObject(pad11)
pad11.Profile = sketch13
pad11.Length = 12

# Sketch on XZ plane
sketch14 = doc.addObject("Sketcher::SketchObject", "Sketch013")
body.addObject(sketch14)
sketch14.AttachmentSupport = (doc.XZ_Plane, [""])
sketch14.MapMode = "FlatFace"
add_polygon(sketch14, [(-142, -40), (-142, -32), (-79, -32), (-79, -40)])  # lines 0-3
add_polygon(sketch14, [(-79, 8), (-79, 0), (-142, 0), (-142, 8)])  # lines 4-7
sketch14.addConstraint(Sketcher.Constraint("Vertical", 0))
sketch14.addConstraint(Sketcher.Constraint("Horizontal", 1))
sketch14.addConstraint(Sketcher.Constraint("Vertical", 2))
sketch14.addConstraint(Sketcher.Constraint("Horizontal", 3))
sketch14.addConstraint(Sketcher.Constraint("Vertical", 4))
sketch14.addConstraint(Sketcher.Constraint("Horizontal", 5))
sketch14.addConstraint(Sketcher.Constraint("Vertical", 6))
sketch14.addConstraint(Sketcher.Constraint("Horizontal", 7))
sketch14.addConstraint(Sketcher.Constraint("PointOnObject", 4, 2, -1))
sketch14.addConstraint(Sketcher.Constraint("Vertical", 2, 2, 4, 2))
sketch14.addConstraint(Sketcher.Constraint("Vertical", 3, 2, 5, 2))
sketch14.addConstraint(Sketcher.Constraint("Equal", 2, 4))
sketch14.addConstraint(Sketcher.Constraint("DistanceX", 1, 1, 1, 2, Q("63 mm")))
sketch14.addConstraint(Sketcher.Constraint("DistanceY", 0, 1, 0, 2, Q("8 mm")))
sketch14.addConstraint(Sketcher.Constraint("DistanceX", 0, 2, -1, 1, Q("142 mm")))
sketch14.addConstraint(Sketcher.Constraint("DistanceY", 0, 2, -1, 1, Q("32 mm")))
pocket3 = doc.addObject("PartDesign::Pocket", "Pocket002")
body.addObject(pocket3)
pocket3.Profile = sketch14
pocket3.Length = 3
pocket3.Reversed = True

doc.recompute()
